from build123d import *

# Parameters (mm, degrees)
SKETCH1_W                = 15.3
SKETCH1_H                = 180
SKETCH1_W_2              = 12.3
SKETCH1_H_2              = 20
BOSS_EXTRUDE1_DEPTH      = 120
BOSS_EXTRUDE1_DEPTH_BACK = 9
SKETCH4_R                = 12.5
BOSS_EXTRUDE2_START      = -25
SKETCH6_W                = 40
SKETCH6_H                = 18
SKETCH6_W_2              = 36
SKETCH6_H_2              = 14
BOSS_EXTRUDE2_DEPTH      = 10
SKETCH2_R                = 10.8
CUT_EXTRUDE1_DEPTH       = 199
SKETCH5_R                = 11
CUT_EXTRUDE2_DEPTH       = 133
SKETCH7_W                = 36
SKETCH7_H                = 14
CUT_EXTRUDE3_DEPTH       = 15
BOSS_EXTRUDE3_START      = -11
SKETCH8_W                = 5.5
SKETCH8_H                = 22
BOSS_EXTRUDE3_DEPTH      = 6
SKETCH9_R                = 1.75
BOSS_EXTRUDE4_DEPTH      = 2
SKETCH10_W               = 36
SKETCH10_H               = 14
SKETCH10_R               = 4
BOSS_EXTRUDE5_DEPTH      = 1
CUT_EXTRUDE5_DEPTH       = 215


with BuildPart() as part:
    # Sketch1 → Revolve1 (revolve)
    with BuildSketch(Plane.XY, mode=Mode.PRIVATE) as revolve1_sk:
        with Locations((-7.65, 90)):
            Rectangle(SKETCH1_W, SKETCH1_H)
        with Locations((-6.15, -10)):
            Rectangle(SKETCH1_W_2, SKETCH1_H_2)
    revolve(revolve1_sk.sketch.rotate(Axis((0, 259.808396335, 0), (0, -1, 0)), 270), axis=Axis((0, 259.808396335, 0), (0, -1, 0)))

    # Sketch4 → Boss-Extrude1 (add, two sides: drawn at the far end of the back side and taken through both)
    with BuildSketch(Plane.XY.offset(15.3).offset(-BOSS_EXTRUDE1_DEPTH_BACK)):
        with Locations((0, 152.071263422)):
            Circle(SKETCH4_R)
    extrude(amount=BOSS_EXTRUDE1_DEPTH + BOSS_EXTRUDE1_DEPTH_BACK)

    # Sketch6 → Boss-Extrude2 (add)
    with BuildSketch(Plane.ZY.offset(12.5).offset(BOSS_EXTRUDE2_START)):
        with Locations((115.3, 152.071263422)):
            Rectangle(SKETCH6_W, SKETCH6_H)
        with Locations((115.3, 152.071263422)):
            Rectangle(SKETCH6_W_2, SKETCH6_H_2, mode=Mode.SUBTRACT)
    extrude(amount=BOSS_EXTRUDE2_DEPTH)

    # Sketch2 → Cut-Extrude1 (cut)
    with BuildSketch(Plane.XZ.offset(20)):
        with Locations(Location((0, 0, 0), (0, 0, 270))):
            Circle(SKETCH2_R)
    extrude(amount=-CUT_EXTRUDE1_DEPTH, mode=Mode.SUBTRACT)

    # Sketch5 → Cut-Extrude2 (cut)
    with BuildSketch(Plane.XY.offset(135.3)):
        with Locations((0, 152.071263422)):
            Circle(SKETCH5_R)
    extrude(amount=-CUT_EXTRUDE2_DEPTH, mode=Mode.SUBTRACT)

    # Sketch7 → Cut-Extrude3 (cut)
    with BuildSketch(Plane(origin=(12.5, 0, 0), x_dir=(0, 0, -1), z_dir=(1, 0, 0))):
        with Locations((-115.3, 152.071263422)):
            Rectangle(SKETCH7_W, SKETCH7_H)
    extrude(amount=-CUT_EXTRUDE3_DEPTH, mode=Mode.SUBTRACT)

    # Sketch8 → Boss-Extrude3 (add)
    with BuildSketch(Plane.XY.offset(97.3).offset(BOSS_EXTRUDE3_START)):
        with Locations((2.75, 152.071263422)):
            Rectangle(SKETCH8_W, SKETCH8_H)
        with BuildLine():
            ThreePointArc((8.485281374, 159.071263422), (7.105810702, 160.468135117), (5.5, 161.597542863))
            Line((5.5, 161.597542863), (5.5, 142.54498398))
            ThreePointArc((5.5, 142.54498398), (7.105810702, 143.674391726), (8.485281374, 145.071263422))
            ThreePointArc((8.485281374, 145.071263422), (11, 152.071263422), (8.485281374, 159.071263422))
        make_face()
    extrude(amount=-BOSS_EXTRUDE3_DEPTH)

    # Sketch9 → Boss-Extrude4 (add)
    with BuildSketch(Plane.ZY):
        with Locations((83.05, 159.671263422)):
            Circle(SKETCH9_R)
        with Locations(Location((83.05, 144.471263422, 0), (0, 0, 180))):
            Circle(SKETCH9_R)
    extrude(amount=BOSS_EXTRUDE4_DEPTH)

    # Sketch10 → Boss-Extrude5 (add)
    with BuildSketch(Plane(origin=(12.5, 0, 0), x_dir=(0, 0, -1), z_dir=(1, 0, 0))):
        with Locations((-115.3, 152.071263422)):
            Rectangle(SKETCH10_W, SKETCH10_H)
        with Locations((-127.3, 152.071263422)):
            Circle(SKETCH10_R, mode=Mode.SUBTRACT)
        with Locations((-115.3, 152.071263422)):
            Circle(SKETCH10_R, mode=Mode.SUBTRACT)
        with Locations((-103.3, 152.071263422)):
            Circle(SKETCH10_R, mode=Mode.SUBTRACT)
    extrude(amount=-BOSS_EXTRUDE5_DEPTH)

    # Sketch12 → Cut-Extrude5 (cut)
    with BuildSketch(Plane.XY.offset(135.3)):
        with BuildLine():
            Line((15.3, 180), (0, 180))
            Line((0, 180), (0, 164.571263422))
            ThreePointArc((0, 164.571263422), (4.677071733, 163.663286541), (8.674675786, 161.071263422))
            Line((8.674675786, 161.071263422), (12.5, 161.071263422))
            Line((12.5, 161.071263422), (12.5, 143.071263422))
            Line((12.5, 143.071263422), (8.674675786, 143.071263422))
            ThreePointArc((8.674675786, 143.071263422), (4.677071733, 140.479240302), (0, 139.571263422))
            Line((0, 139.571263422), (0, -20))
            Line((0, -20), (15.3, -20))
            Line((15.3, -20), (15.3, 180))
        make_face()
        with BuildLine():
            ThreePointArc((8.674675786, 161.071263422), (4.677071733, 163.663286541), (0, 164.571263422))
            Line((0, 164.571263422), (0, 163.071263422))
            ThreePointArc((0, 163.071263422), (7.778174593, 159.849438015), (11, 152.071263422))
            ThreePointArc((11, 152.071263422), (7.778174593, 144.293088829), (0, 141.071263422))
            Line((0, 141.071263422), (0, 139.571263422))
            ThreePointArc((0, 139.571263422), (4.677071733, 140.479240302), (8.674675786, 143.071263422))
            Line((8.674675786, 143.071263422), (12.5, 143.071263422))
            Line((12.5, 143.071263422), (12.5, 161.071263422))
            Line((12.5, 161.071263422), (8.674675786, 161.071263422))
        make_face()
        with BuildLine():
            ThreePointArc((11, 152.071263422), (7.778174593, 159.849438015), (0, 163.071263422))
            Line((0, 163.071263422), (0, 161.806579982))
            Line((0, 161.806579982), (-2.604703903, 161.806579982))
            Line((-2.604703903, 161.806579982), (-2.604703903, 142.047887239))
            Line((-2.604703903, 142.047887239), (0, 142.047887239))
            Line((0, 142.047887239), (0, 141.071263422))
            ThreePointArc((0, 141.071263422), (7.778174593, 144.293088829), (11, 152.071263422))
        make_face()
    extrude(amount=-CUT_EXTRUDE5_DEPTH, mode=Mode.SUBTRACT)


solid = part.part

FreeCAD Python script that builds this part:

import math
import FreeCAD as App
import Part
import Sketcher
Q = App.Units.Quantity


def add_polygon(sketch, points):
    """Adds a closed chain of lines whose ends are joined by coincident constraints."""
    first, n = sketch.GeometryCount, len(points)
    for a, b in zip(points, points[1:] + points[:1]):
        sketch.addGeometry(Part.LineSegment(App.Vector(*a, 0), App.Vector(*b, 0)), False)
    for i in range(n):
        sketch.addConstraint(Sketcher.Constraint("Coincident", first + i, 2, first + (i + 1) % n, 1))

doc = App.newDocument("Part")
body = doc.addObject("PartDesign::Body", "Body")

sketch1 = doc.addObject("Sketcher::SketchObject", "Sketch")
body.addObject(sketch1)
sketch1.AttachmentSupport = (doc.XY_Plane, [""])
sketch1.MapMode = "FlatFace"
add_polygon(sketch1, [(-15.3, 180), (-15.3, 0), (-12.3, 0), (-12.3, -20), (0, -20), (0, 180)])
sketch1.addConstraint([
    Sketcher.Constraint("Vertical", 0),
    Sketcher.Constraint("Horizontal", 1),
    Sketcher.Constraint("Vertical", 2),
    Sketcher.Constraint("Horizontal", 3),
    Sketcher.Constraint("Vertical", 4),
    Sketcher.Constraint("Horizontal", 5),
    Sketcher.Constraint("PointOnObject", 0, 2, -1),
    Sketcher.Constraint("PointOnObject", 3, 2, -2),
    Sketcher.Constraint("DistanceX", 1, 1, 1, 2, Q("3 mm")),
    Sketcher.Constraint("DistanceY", 0, 2, 0, 1, Q("180 mm")),
    Sketcher.Constraint("DistanceY", 2, 2, 2, 1, Q("20 mm")),
    Sketcher.Constraint("DistanceX", 3, 1, 3, 2, Q("12.3 mm")),
])
revolution = doc.addObject("PartDesign::Revolution", "Revolution")
body.addObject(revolution)
revolution.Profile = sketch1
revolution.ReferenceAxis = (sketch1, ["V_Axis"])
revolution.Angle = 360

sketch2 = doc.addObject("Sketcher::SketchObject", "Sketch001")
body.addObject(sketch2)
sketch2.AttachmentSupport = (doc.XY_Plane, [""])
sketch2.MapMode = "FlatFace"
sketch2.AttachmentOffset = App.Placement(App.Vector(0, 0, 15.3), App.Rotation())
sketch2.addGeometry(Part.Circle(App.Vector(0, 152, 0), App.Vector(0, 0, 1), 12), False)
sketch2.addConstraint([
    Sketcher.Constraint("PointOnObject", 0, 3, -2),
    Sketcher.Constraint("Diameter", 0, Q("25 mm")),
    Sketcher.Constraint("DistanceY", -1, 1, 0, 3, Q("152.071263 mm")),
])
pad1 = doc.addObject("PartDesign::Pad", "Pad")
body.addObject(pad1)
pad1.Profile = sketch2
pad1.Type = "TwoLengths"
pad1.Length = 120
pad1.Length2 = 9

sketch3 = doc.addObject("Sketcher::SketchObject", "Sketch002")
body.addObject(sketch3)
sketch3.AttachmentSupport = (doc.YZ_Plane, [""])
sketch3.MapMode = "FlatFace"
sketch3.AttachmentOffset = App.Placement(App.Vector(0, 0, 12.5), App.Rotation())
add_polygon(sketch3, [(161, 95), (143, 95), (143, 135), (161, 135)])
add_polygon(sketch3, [(145, 133), (145, 97), (159, 97), (159, 133)])
sketch3.addConstraint([
    Sketcher.Constraint("Horizontal", 0),
    Sketcher.Constraint("Vertical", 1),
    Sketcher.Constraint("Horizontal", 2),
    Sketcher.Constraint("Vertical", 3),
    Sketcher.Constraint("Vertical", 4),
    Sketcher.Constraint("Horizontal", 5),
    Sketcher.Constraint("Vertical", 6),
    Sketcher.Constraint("Horizontal", 7),
    Sketcher.Constraint("DistanceX", 0, 2, 0, 1, Q("18 mm")),
    Sketcher.Constraint("DistanceX", 5, 1, 5, 2, Q("14 mm")),
    Sketcher.Constraint("DistanceY", 1, 1, 1, 2, Q("40 mm")),
    Sketcher.Constraint("DistanceY", 4, 2, 4, 1, Q("36 mm")),
    Sketcher.Constraint("DistanceX", 0, 2, 4, 2, Q("2 mm")),
    Sketcher.Constraint("DistanceY", 0, 2, 4, 2, Q("2 mm")),
    Sketcher.Constraint("DistanceY", -1, 1, 0, 2, Q("95.3 mm")),
    Sketcher.Constraint("DistanceX", -1, 1, 0, 2, Q("143.071263 mm")),
])
pad2 = doc.addObject("PartDesign::Pad", "Pad001")
body.addObject(pad2)
pad2.Profile = sketch3
pad2.Length = 10
pad2.Reversed = True

sketch4 = doc.addObject("Sketcher::SketchObject", "Sketch003")
body.addObject(sketch4)
sketch4.AttachmentSupport = (doc.XZ_Plane, [""])
sketch4.MapMode = "FlatFace"
sketch4.AttachmentOffset = App.Placement(App.Vector(0, 0, 20), App.Rotation())
sketch4.addGeometry(Part.Circle(App.Vector(0, 0, 0), App.Vector(0, 0, 1), 11), False)
sketch4.addConstraint([
    Sketcher.Constraint("Coincident", 0, 3, -1, 1),
    Sketcher.Constraint("Diameter", 0, Q("21.6 mm")),
])
pocket1 = doc.addObject("PartDesign::Pocket", "Pocket")
body.addObject(pocket1)
pocket1.Profile = sketch4
pocket1.Length = 199

sketch5 = doc.addObject("Sketcher::SketchObject", "Sketch004")
body.addObject(sketch5)
sketch5.AttachmentSupport = (doc.XY_Plane, [""])
sketch5.MapMode = "FlatFace"
sketch5.AttachmentOffset = App.Placement(App.Vector(0, 0, 135.3), App.Rotation())
sketch5.addGeometry(Part.Circle(App.Vector(0, 152, 0), App.Vector(0, 0, 1), 11), False)
sketch5.addConstraint([
    Sketcher.Constraint("PointOnObject", 0, 3, -2),
    Sketcher.Constraint("Diameter", 0, Q("22 mm")),
    Sketcher.Constraint("DistanceY", -1, 1, 0, 3, Q("152.071263 mm")),
])
pocket2 = doc.addObject("PartDesign::Pocket", "Pocket001")
body.addObject(pocket2)
pocket2.Profile = sketch5
pocket2.Length = 133

sketch6 = doc.addObject("Sketcher::SketchObject", "Sketch005")
body.addObject(sketch6)
sketch6.AttachmentSupport = (doc.YZ_Plane, [""])
sketch6.MapMode = "FlatFace"
sketch6.AttachmentOffset = App.Placement(App.Vector(0, 0, 12.5), App.Rotation())
add_polygon(sketch6, [(159, 133), (145, 133), (145, 97), (159, 97)])
sketch6.addConstraint([
    Sketcher.Constraint("Horizontal", 0),
    Sketcher.Constraint("Vertical", 1),
    Sketcher.Constraint("Horizontal", 2),
    Sketcher.Constraint("Vertical", 3),
    Sketcher.Constraint("DistanceX", 0, 2, 0, 1, Q("14 mm")),
    Sketcher.Constraint("DistanceY", 1, 2, 1, 1, Q("36 mm")),
    Sketcher.Constraint("DistanceY", -1, 1, 0, 2, Q("133.3 mm")),
    Sketcher.Constraint("DistanceX", -1, 1, 0, 2, Q("145.071263 mm")),
])
pocket3 = doc.addObject("PartDesign::Pocket", "Pocket002")
body.addObject(pocket3)
pocket3.Profile = sketch6
pocket3.Length = 15

sketch7 = doc.addObject("Sketcher::SketchObject", "Sketch006")
body.addObject(sketch7)
sketch7.AttachmentSupport = (doc.XY_Plane, [""])
sketch7.MapMode = "FlatFace"
sketch7.AttachmentOffset = App.Placement(App.Vector(0, 0, 86.3), App.Rotation())
sketch7.addGeometry([
    Part.LineSegment(App.Vector(0, 163.1, 0), App.Vector(0, 141.1, 0)),
    Part.LineSegment(App.Vector(0, 141.1, 0), App.Vector(5.5, 141.1, 0)),
    Part.LineSegment(App.Vector(5.5, 141.1, 0), App.Vector(5.5, 142.5, 0)),
    Part.ArcOfCircle(Part.Circle(App.Vector(0, 152.1, 0), App.Vector(0, 0, 1), 11), math.radians(-60), math.radians(-40)),
    Part.ArcOfCircle(Part.Circle(App.Vector(0, 152.1, 0), App.Vector(0, 0, 1), 11), math.radians(-40), math.radians(40)),
    Part.ArcOfCircle(Part.Circle(App.Vector(0, 152.1, 0), App.Vector(0, 0, 1), 11), math.radians(40), math.radians(60)),
    Part.LineSegment(App.Vector(5.5, 161.6, 0), App.Vector(5.5, 163.1, 0)),
    Part.LineSegment(App.Vector(5.5, 163.1, 0), App.Vector(0, 163.1, 0)),
], False)
sketch7.addConstraint([
    Sketcher.Constraint("Coincident", 0, 2, 1, 1),
    Sketcher.Constraint("Coincident", 1, 2, 2, 1),
    Sketcher.Constraint("Coincident", 2, 2, 3, 1),
    Sketcher.Constraint("Tangent", 3, 2, 4, 1),
    Sketcher.Constraint("Tangent", 4, 2, 5, 1),
    Sketcher.Constraint("Coincident", 5, 2, 6, 1),
    Sketcher.Constraint("Coincident", 6, 2, 7, 1),
    Sketcher.Constraint("Coincident", 7, 2, 0, 1),
    Sketcher.Constraint("Vertical", 0),
    Sketcher.Constraint("Horizontal", 1),
    Sketcher.Constraint("Vertical", 2),
    Sketcher.Constraint("Vertical", 6),
    Sketcher.Constraint("Horizontal", 7),
    Sketcher.Constraint("Coincident", 5, 3, 3, 3),
    Sketcher.Constraint("PointOnObject", 3, 3, -2),
    Sketcher.Constraint("PointOnObject", 0, 2, -2),
    Sketcher.Constraint("Vertical", 3, 2, 4, 2),
    Sketcher.Constraint("Vertical", 2, 2, 5, 2),
    Sketcher.Constraint("Equal", 2, 6),
    Sketcher.Constraint("Radius", 3, Q("11 mm")),
    Sketcher.Constraint("DistanceY", 0, 2, 0, 1, Q("22 mm")),
    Sketcher.Constraint("DistanceX", 1, 1, 1, 2, Q("5.5 mm")),
    Sketcher.Constraint("DistanceY", 1, 2, 3, 2, Q("4 mm")),
    Sketcher.Constraint("DistanceY", -1, 1, 3, 3, Q("152.071263 mm")),
])
pad3 = doc.addObject("PartDesign::Pad", "Pad002")
body.addObject(pad3)
pad3.Profile = sketch7
pad3.Length = 6
pad3.Reversed = True

sketch8 = doc.addObject("Sketcher::SketchObject", "Sketch007")
body.addObject(sketch8)
sketch8.AttachmentSupport = (doc.YZ_Plane, [""])
sketch8.MapMode = "FlatFace"
sketch8.addGeometry([
    Part.Circle(App.Vector(159.7, 83, 0), App.Vector(0, 0, 1), 1.8),
    Part.Circle(App.Vector(144.5, 83, 0), App.Vector(0, 0, 1), 1.8),
], False)
sketch8.addConstraint([
    Sketcher.Constraint("Equal", 0, 1),
    Sketcher.Constraint("Horizontal", 0, 3, 1, 3),
    Sketcher.Constraint("Diameter", 0, Q("3.5 mm")),
    Sketcher.Constraint("DistanceX", 1, 3, 0, 3, Q("15.2 mm")),
    Sketcher.Constraint("DistanceY", -1, 1, 0, 3, Q("83.05 mm")),
    Sketcher.Constraint("DistanceX", -1, 1, 0, 3, Q("159.671263 mm")),
])
pad4 = doc.addObject("PartDesign::Pad", "Pad003")
body.addObject(pad4)
pad4.Profile = sketch8
pad4.Length = 2
pad4.Reversed = True

sketch9 = doc.addObject("Sketcher::SketchObject", "Sketch008")
body.addObject(sketch9)
sketch9.AttachmentSupport = (doc.YZ_Plane, [""])
sketch9.MapMode = "FlatFace"
sketch9.AttachmentOffset = App.Placement(App.Vector(0, 0, 12.5), App.Rotation())
add_polygon(sketch9, [(159.1, 133.3), (145.1, 133.3), (145.1, 97.3), (159.1, 97.3)])
sketch9.addGeometry(Part.Circle(App.Vector(152.1, 127.3, 0), App.Vector(0, 0, 1), 4), False)
sketch9.addGeometry(Part.Circle(App.Vector(152.1, 115.3, 0), App.Vector(0, 0, 1), 4), False)
sketch9.addGeometry(Part.Circle(App.Vector(152.1, 103.3, 0), App.Vector(0, 0, 1), 4), False)
sketch9.addConstraint([
    Sketcher.Constraint("Horizontal", 0),
    Sketcher.Constraint("Vertical", 1),
    Sketcher.Constraint("Horizontal", 2),
    Sketcher.Constraint("Vertical", 3),
    Sketcher.Constraint("Equal", 4, 5),
    Sketcher.Constraint("Equal", 5, 6),
    Sketcher.Constraint("Vertical", 4, 3, 5, 3),
    Sketcher.Constraint("Vertical", 5, 3, 6, 3),
    Sketcher.Constraint("Diameter", 4, Q("8 mm")),
    Sketcher.Constraint("DistanceX", 0, 2, 0, 1, Q("14 mm")),
    Sketcher.Constraint("DistanceY", 1, 2, 1, 1, Q("36 mm")),
    Sketcher.Constraint("DistanceY", 5, 3, 4, 3, Q("12 mm")),
    Sketcher.Constraint("DistanceY", 6, 3, 5, 3, Q("12 mm")),
    Sketcher.Constraint("DistanceX", 0, 2, 4, 3, Q("7 mm")),
    Sketcher.Constraint("DistanceY", 4, 3, 0, 2, Q("6 mm")),
    Sketcher.Constraint("DistanceY", -1, 1, 4, 3, Q("127.3 mm")),
    Sketcher.Constraint("DistanceX", -1, 1, 4, 3, Q("152.071263 mm")),
])
pad5 = doc.addObject("PartDesign::Pad", "Pad004")
body.addObject(pad5)
pad5.Profile = sketch9
pad5.Length = 1
pad5.Reversed = True

sketch10 = doc.addObject("Sketcher::SketchObject", "Sketch009")
body.addObject(sketch10)
sketch10.AttachmentSupport = (doc.XY_Plane, [""])
sketch10.MapMode = "FlatFace"
sketch10.AttachmentOffset = App.Placement(App.Vector(0, 0, 135.3), App.Rotation())
add_polygon(sketch10, [(15.3, 180), (0, 180), (0, 161.8), (-2.6, 161.8), (-2.6, 142), (0, 142), (0, -20), (15.3, -20)])
sketch10.addConstraint([
    Sketcher.Constraint("Horizontal", 0),
    Sketcher.Constraint("Vertical", 1),
    Sketcher.Constraint("Horizontal", 2),
    Sketcher.Constraint("Vertical", 3),
    Sketcher.Constraint("Horizontal", 4),
    Sketcher.Constraint("Vertical", 5),
    Sketcher.Constraint("Horizontal", 6),
    Sketcher.Constraint("Vertical", 7),
    Sketcher.Constraint("PointOnObject", 0, 2, -2),
    Sketcher.Constraint("PointOnObject", 4, 2, -2),
    Sketcher.Constraint("DistanceY", 7, 1, 7, 2, Q("200 mm")),
    Sketcher.Constraint("DistanceX", 0, 2, 0, 1, Q("15.3 mm")),
    Sketcher.Constraint("DistanceY", -1, 1, 0, 2, Q("180 mm")),
    Sketcher.Constraint("DistanceY", 1, 2, 1, 1, Q("18.19342 mm")),
    Sketcher.Constraint("DistanceX", 2, 2, 2, 1, Q("2.604704 mm")),
    Sketcher.Constraint("DistanceY", 3, 2, 3, 1, Q("19.758693 mm")),
])
pocket4 = doc.addObject("PartDesign::Pocket", "Pocket003")
body.addObject(pocket4)
pocket4.Profile = sketch10
pocket4.Length = 215

doc.recompute()
